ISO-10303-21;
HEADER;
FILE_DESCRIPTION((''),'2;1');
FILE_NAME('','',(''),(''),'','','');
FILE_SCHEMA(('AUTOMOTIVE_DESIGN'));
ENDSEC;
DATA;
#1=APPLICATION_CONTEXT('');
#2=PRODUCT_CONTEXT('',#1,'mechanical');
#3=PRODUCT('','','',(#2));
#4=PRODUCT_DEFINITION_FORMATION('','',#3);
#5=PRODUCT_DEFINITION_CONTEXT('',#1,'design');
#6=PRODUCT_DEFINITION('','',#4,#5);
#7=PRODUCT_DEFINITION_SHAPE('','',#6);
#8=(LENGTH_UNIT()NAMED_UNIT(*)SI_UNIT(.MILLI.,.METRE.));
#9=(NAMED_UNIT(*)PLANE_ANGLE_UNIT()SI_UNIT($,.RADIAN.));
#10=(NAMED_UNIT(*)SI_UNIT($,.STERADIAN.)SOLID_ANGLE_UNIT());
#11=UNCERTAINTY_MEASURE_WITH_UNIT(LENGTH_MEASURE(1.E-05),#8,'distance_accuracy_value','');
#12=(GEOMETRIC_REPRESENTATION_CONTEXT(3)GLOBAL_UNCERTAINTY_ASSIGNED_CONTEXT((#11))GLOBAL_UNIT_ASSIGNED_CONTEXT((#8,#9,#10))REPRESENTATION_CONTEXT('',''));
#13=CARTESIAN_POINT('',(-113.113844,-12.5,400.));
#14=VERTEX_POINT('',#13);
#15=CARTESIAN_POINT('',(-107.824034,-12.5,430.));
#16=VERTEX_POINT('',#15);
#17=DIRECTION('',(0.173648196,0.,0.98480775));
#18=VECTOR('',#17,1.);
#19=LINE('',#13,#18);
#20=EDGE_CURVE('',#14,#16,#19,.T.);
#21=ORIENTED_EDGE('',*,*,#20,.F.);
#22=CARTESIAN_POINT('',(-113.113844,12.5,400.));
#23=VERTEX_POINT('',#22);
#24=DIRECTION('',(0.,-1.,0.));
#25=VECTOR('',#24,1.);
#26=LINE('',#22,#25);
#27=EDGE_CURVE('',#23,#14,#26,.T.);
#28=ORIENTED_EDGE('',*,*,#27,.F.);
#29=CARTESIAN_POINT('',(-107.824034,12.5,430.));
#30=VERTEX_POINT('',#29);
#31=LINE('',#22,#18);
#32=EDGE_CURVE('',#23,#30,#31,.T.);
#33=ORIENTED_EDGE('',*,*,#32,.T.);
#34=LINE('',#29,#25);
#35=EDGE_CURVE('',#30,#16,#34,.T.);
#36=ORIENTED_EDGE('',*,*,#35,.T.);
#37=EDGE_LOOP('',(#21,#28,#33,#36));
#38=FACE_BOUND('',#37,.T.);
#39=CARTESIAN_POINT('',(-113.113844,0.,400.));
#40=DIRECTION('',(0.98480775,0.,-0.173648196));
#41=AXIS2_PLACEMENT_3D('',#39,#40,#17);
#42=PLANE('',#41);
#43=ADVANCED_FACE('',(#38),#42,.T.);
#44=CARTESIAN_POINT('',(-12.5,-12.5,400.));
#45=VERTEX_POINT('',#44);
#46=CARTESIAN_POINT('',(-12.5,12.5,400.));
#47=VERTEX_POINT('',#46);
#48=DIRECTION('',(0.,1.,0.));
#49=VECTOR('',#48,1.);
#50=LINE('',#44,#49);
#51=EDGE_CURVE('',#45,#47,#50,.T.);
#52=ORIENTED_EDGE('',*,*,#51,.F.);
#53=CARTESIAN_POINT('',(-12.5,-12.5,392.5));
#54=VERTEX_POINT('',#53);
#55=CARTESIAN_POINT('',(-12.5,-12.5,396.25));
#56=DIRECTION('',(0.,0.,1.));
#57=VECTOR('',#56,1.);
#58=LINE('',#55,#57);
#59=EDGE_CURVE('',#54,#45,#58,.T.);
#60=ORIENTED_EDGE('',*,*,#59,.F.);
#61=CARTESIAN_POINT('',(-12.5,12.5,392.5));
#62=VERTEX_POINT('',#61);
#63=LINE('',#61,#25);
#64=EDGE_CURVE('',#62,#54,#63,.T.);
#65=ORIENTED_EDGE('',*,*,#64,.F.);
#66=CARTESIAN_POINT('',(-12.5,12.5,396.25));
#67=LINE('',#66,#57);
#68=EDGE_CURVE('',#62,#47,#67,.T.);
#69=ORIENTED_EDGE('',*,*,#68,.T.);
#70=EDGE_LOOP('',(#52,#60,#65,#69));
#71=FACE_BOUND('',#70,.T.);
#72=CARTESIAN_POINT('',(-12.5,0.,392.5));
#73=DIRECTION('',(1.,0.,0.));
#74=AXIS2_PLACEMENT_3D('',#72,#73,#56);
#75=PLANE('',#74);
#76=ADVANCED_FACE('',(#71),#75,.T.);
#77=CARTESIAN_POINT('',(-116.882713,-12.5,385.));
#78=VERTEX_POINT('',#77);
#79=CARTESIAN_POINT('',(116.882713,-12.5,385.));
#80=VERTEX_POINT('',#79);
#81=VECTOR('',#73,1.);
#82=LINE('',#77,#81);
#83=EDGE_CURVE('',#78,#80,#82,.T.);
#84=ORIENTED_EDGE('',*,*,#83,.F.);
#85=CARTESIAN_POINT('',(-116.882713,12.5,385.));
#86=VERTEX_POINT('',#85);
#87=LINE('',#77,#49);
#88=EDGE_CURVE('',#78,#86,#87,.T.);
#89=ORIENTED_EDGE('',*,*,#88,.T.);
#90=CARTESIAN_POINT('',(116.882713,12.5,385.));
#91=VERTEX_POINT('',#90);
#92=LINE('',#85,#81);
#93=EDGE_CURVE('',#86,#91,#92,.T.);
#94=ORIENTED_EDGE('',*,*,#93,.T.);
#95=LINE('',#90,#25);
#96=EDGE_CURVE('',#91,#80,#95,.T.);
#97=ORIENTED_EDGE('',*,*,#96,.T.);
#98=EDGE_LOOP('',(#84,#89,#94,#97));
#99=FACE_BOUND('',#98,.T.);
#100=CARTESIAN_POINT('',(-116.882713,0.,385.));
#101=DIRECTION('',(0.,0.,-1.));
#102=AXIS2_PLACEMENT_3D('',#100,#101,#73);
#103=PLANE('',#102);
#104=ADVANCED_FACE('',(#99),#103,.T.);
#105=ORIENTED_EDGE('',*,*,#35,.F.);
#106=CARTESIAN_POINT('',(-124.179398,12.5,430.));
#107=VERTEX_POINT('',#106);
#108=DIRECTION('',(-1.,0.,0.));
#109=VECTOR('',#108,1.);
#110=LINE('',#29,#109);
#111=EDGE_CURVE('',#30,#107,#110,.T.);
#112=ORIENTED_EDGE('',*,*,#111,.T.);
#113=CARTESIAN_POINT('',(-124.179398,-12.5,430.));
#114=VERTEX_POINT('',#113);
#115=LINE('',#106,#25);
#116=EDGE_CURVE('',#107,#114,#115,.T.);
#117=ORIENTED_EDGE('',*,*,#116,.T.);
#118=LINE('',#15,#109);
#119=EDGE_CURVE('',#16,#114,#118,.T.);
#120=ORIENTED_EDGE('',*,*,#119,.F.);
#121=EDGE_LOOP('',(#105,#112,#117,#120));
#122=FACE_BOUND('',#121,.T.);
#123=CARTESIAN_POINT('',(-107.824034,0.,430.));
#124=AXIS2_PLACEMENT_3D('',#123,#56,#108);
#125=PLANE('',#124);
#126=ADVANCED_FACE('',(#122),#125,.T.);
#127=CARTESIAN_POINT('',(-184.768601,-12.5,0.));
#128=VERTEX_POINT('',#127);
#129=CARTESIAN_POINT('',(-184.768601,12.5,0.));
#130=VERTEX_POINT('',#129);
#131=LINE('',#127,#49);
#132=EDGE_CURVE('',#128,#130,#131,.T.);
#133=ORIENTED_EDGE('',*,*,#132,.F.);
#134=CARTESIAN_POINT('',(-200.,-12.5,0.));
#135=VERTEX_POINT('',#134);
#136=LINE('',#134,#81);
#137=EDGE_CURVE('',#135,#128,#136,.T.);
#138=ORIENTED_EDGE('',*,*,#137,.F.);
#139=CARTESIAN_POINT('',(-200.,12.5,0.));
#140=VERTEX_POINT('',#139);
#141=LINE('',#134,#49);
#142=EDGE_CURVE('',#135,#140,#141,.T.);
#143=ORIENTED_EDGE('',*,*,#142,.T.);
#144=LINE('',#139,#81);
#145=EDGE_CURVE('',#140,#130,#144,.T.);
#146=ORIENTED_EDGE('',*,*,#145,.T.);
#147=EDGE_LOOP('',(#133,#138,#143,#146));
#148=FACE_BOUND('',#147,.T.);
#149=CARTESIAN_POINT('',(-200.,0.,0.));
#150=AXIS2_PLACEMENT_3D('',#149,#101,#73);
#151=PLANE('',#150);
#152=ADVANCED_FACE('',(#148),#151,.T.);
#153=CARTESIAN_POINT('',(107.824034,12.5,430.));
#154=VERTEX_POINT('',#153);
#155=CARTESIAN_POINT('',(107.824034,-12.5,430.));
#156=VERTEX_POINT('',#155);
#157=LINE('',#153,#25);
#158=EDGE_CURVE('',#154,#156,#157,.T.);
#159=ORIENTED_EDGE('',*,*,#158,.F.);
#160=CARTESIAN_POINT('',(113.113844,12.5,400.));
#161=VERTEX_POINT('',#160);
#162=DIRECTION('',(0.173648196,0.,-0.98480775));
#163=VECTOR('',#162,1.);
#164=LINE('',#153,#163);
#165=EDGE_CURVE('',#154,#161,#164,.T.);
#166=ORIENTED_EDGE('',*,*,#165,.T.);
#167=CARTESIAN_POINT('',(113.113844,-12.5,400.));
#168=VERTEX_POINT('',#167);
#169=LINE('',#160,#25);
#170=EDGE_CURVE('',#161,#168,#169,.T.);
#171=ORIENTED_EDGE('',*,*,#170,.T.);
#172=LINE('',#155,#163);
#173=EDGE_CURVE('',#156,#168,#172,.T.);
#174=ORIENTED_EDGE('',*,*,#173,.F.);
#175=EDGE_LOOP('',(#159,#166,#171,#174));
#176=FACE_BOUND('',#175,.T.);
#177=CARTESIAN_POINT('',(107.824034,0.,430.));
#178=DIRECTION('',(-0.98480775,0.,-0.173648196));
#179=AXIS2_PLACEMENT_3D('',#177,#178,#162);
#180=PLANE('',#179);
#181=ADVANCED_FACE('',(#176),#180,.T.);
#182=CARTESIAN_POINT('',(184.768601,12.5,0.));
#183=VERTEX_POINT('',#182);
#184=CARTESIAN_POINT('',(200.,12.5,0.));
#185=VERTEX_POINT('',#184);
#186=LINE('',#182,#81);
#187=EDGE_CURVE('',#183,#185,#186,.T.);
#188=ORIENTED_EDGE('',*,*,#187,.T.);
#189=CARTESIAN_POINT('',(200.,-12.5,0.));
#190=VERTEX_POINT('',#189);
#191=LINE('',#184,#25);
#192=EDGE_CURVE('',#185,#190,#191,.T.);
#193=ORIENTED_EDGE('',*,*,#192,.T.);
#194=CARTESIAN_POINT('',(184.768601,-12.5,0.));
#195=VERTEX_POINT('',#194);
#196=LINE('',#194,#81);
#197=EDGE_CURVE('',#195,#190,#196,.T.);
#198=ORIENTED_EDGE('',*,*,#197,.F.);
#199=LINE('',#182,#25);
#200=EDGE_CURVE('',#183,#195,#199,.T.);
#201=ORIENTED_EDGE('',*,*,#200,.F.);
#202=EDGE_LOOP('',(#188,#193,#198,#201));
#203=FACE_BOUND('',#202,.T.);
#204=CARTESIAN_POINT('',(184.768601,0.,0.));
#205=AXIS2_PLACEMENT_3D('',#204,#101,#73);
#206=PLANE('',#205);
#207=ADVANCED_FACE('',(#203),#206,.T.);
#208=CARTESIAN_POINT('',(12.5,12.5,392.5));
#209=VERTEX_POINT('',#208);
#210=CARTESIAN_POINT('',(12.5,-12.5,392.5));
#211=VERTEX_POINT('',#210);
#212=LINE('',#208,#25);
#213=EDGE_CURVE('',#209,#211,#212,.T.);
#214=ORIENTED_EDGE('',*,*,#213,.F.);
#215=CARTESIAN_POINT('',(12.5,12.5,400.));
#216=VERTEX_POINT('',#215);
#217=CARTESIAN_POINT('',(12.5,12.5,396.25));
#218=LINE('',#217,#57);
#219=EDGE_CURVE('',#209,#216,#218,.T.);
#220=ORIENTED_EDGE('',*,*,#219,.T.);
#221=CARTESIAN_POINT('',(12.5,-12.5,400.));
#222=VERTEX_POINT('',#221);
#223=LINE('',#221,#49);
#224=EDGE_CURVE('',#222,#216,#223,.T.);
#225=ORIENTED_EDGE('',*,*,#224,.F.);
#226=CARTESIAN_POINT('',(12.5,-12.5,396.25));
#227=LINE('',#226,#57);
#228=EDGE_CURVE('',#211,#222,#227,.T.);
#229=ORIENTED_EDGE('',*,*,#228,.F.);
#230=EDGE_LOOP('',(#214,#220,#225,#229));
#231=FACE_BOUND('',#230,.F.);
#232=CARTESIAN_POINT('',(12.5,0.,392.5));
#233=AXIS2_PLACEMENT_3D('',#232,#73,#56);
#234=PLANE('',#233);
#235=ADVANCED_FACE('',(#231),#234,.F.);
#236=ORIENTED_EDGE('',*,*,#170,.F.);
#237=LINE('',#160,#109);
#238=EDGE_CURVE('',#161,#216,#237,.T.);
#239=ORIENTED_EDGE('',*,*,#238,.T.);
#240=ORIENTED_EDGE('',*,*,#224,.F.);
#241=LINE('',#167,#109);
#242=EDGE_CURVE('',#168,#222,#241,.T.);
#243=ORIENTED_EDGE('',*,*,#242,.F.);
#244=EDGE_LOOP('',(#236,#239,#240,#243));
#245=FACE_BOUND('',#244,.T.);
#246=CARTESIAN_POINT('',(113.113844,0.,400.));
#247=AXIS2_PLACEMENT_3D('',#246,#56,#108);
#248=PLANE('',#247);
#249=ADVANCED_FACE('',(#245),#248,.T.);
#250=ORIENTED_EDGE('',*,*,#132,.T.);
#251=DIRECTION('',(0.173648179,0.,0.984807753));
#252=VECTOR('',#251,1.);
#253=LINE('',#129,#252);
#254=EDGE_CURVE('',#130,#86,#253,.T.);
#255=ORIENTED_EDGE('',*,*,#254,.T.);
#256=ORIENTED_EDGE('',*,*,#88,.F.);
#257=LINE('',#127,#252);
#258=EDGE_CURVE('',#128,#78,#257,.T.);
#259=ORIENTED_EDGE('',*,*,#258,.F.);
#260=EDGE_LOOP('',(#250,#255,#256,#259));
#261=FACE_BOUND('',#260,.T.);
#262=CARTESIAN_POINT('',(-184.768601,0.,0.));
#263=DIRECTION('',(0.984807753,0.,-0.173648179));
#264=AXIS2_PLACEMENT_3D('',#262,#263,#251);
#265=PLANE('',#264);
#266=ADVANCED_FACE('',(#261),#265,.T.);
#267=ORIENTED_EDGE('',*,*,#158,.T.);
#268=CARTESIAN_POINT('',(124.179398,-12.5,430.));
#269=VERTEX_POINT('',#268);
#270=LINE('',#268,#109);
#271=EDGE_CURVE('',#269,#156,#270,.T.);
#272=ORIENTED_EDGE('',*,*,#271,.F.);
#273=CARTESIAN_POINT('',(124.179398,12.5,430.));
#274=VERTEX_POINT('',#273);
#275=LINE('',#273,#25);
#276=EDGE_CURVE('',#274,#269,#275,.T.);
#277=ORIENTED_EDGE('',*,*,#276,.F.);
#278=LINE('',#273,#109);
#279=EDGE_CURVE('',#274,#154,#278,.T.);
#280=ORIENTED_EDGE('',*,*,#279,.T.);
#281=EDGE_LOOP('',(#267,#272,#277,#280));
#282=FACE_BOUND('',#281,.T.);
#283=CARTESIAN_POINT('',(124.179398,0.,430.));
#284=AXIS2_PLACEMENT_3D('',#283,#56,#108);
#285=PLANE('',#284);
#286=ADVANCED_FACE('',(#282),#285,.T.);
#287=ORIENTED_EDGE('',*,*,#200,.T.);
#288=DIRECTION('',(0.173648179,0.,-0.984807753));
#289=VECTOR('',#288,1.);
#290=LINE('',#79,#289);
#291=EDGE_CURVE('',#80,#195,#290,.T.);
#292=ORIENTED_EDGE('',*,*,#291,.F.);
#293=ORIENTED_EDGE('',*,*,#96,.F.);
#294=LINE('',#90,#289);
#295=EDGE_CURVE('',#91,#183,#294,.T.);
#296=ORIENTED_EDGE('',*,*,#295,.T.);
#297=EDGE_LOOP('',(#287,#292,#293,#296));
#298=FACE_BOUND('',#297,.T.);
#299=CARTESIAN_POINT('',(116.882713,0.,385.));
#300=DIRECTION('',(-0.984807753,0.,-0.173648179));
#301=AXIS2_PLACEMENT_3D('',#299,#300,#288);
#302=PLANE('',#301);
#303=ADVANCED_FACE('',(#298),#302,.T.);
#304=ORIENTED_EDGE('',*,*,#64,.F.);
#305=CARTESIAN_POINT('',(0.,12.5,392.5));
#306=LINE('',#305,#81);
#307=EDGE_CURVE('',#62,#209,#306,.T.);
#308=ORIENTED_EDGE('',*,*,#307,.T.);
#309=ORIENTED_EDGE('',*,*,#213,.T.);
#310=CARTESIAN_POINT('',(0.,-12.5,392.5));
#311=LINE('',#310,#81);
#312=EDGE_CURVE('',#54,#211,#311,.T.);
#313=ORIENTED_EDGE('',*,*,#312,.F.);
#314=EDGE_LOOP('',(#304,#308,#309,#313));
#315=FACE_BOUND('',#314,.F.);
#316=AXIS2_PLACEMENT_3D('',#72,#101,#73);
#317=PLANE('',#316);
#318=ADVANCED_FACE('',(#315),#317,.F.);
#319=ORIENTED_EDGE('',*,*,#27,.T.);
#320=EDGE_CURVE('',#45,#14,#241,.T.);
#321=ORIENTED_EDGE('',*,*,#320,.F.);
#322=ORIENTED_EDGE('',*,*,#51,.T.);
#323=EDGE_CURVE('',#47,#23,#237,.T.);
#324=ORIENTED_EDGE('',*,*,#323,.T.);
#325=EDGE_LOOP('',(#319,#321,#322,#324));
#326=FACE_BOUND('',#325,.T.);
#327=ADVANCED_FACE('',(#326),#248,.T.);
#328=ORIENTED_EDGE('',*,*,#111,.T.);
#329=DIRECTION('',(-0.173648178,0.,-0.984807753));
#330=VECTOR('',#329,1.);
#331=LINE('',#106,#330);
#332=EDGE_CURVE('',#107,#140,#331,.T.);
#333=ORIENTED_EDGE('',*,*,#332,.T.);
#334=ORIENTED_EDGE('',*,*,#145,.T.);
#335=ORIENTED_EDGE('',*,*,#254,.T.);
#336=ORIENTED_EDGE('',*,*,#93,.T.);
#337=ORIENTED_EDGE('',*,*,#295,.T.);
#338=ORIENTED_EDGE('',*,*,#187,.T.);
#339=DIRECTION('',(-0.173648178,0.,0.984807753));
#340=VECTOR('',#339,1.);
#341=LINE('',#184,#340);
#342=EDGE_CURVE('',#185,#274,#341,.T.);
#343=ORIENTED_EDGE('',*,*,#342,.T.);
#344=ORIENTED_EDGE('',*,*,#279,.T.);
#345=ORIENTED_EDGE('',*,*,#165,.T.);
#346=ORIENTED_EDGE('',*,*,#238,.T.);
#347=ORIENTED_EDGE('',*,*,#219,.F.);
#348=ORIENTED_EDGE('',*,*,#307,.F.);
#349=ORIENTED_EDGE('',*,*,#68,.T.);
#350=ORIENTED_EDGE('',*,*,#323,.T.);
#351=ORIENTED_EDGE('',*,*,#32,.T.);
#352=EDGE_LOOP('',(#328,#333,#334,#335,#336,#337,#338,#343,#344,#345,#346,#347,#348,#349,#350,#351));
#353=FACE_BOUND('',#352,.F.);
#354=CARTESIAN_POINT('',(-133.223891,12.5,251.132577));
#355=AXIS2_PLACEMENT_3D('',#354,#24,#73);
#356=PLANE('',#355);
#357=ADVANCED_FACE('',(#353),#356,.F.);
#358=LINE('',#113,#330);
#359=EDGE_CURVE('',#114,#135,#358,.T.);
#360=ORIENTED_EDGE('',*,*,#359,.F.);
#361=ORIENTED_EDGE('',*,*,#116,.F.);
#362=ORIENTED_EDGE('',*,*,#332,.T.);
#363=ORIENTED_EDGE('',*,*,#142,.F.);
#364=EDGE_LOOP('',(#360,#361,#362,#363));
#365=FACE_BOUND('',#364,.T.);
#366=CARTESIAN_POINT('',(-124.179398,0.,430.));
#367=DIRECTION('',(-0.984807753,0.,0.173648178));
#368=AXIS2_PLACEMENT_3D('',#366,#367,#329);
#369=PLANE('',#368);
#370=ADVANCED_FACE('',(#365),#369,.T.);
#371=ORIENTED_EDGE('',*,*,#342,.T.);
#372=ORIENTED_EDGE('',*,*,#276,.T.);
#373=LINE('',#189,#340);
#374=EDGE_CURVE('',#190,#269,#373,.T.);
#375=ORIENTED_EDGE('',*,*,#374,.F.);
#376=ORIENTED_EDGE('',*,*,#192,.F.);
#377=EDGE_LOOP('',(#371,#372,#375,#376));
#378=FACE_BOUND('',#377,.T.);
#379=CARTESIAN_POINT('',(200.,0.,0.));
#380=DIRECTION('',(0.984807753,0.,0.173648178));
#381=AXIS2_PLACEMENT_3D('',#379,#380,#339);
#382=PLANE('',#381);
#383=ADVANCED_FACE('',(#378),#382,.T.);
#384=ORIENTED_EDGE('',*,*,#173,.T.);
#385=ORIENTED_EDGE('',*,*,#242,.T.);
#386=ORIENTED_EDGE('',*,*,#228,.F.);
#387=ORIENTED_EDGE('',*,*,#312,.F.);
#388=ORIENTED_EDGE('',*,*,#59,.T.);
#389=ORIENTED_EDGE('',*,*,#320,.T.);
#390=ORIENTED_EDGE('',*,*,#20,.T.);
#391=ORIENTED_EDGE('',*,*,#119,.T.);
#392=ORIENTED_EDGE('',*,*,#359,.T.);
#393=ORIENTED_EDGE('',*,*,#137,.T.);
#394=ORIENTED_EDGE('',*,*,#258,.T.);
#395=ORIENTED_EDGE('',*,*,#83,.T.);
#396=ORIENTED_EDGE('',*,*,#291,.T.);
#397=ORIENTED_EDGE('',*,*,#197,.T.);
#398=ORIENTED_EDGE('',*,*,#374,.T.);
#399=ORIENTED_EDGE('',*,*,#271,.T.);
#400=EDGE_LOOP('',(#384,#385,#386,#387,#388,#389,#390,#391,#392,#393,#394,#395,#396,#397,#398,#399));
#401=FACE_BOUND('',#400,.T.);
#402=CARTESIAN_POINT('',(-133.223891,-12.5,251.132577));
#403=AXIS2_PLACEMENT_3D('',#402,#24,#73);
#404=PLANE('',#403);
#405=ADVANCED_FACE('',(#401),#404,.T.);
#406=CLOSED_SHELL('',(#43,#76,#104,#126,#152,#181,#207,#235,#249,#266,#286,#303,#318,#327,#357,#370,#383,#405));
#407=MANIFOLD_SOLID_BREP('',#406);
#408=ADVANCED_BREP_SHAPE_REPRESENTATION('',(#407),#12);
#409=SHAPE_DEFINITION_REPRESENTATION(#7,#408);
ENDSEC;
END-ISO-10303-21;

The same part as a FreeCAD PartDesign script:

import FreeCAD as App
import Part
import Sketcher
Q = App.Units.Quantity


def add_polygon(sketch, points):
    """Adds a closed chain of lines whose ends are joined by coincident constraints."""
    first, n = sketch.GeometryCount, len(points)
    for a, b in zip(points, points[1:] + points[:1]):
        sketch.addGeometry(Part.LineSegment(App.Vector(*a, 0), App.Vector(*b, 0)), False)
    for i in range(n):
        sketch.addConstraint(Sketcher.Constraint("Coincident", first + i, 2, first + (i + 1) % n, 1))

doc = App.newDocument("Part")
body = doc.addObject("PartDesign::Body", "Body")

# Sketch on XZ plane
sketch1 = doc.addObject("Sketcher::SketchObject", "Sketch")
body.addObject(sketch1)
sketch1.AttachmentSupport = (doc.XZ_Plane, [""])
sketch1.MapMode = "FlatFace"
add_polygon(sketch1, [(-117, 385), (117, 385), (185, 0), (200, 0), (124, 430), (108, 430), (113, 400), (-113, 400), (-108, 430), (-124, 430), (-200, 0), (-185, 0)])  # lines 0-11
sketch1.addConstraint([
    Sketcher.Constraint("Horizontal", 0),
    Sketcher.Constraint("Horizontal", 2),
    Sketcher.Constraint("Horizontal", 4),
    Sketcher.Constraint("Horizontal", 6),
    Sketcher.Constraint("Horizontal", 8),
    Sketcher.Constraint("Horizontal", 10),
    Sketcher.Constraint("Symmetric", 2, 2, 9, 2, -1, 1),
    Sketcher.Constraint("Symmetric", 4, 2, 7, 2, -2),
    Sketcher.Constraint("Symmetric", 1, 2, 10, 2, -2),
    Sketcher.Constraint("Parallel", 1, 3),
    Sketcher.Constraint("Parallel", 3, 5),
    Sketcher.Constraint("Parallel", 7, 9),
    Sketcher.Constraint("Parallel", 9, 11),
    Sketcher.Constraint("Equal", 4, 8),
    Sketcher.Constraint("Angle", 1, Q("-80 deg")),
    Sketcher.Constraint("DistanceY", -1, 1, 0, 2, 385.0),
    Sketcher.Constraint("DistanceX", -1, 1, 2, 2, 200.0),
    Sketcher.Constraint("DistanceY", -1, 1, 3, 2, 430.0),
    Sketcher.Constraint("DistanceY", -1, 1, 5, 2, 400.0),
    Sketcher.Constraint("DistanceX", 2, 1, 2, 2, 15.231399),
    Sketcher.Constraint("DistanceX", 6, 2, 6, 1, 226.227688),
])
pad1 = doc.addObject("PartDesign::Pad", "Pad")
body.addObject(pad1)
pad1.Profile = sketch1
pad1.Length = 25
pad1.Midplane = True

# Sketch on XZ plane
sketch2 = doc.addObject("Sketcher::SketchObject", "Sketch001")
body.addObject(sketch2)
sketch2.AttachmentSupport = (doc.XZ_Plane, [""])
sketch2.MapMode = "FlatFace"
add_polygon(sketch2, [(-12, 400), (-12, 392), (12, 392), (12, 400)])  # lines 0-3
sketch2.addConstraint([
    Sketcher.Constraint("Vertical", 0),
    Sketcher.Constraint("Horizontal", 1),
    Sketcher.Constraint("Vertical", 2),
    Sketcher.Constraint("Horizontal", 3),
    Sketcher.Constraint("DistanceX", 1, 1, 1, 2, 25.0),
    Sketcher.Constraint("DistanceY", 0, 2, 0, 1, 7.5),
    Sketcher.Constraint("DistanceY", -1, 1, 2, 2, 400.0),
    Sketcher.Constraint("DistanceX", 0, 2, -1, 1, 12.5),
])
pocket1 = doc.addObject("PartDesign::Pocket", "Pocket")
body.addObject(pocket1)
pocket1.Profile = sketch2
pocket1.Length = 25
pocket1.Midplane = True

doc.recompute()
